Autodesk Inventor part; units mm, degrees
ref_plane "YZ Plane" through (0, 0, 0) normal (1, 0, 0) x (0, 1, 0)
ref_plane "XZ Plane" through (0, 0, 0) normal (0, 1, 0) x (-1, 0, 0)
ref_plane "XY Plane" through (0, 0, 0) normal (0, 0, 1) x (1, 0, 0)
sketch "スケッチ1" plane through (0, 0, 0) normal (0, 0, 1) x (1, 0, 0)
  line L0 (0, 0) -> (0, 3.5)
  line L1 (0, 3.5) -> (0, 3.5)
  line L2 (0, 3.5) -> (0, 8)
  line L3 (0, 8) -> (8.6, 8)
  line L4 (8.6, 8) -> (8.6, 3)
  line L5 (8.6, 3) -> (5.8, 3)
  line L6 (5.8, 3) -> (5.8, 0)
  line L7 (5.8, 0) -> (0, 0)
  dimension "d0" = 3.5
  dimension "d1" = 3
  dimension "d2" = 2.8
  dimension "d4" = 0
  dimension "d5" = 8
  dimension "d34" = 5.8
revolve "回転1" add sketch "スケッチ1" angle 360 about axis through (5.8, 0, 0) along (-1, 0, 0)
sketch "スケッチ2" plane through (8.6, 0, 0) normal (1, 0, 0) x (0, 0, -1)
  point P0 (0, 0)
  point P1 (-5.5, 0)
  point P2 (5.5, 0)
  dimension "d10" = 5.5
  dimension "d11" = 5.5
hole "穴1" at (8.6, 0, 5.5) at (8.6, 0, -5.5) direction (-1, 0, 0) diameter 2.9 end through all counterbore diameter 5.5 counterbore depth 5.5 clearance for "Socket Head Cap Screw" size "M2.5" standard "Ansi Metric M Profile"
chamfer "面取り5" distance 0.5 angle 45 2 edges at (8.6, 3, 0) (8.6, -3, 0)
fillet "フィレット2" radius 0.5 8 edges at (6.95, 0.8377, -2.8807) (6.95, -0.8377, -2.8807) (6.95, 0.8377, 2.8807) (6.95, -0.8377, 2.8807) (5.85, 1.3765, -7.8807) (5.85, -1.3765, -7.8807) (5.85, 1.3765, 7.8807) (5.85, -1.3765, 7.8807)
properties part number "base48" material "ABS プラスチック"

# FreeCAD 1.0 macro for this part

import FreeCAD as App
import Part
import Sketcher

V = App.Vector


def edges_at(feature, points):
    """Names of the edges that pass closest to the given points."""
    edges = feature.Shape.Edges
    near = lambda p: min(range(len(edges)), key=lambda i: edges[i].distToShape(Part.Vertex(*p))[0])
    return sorted({f"Edge{near(p) + 1}" for p in points})

doc = App.newDocument("Part")
body = doc.addObject("PartDesign::Body", "Body")

# Sketch on XY plane
sketch1 = body.newObject("Sketcher::SketchObject", "Sketch")
sketch1.AttachmentSupport = (doc.getObject("XY_Plane"), [""])
sketch1.MapMode = "FlatFace"
sketch1.addGeometry(Part.LineSegment(V(0, 8, 0), V(0, 0, 0)), False)
sketch1.addGeometry(Part.LineSegment(V(0, 0, 0), V(5.8, 0, 0)), False)
sketch1.addGeometry(Part.LineSegment(V(5.8, 0, 0), V(5.8, 3, 0)), False)
sketch1.addGeometry(Part.LineSegment(V(5.8, 3, 0), V(8.6, 3, 0)), False)
sketch1.addGeometry(Part.LineSegment(V(8.6, 3, 0), V(8.6, 8, 0)), False)
sketch1.addGeometry(Part.LineSegment(V(8.6, 8, 0), V(0, 8, 0)), False)
sketch1.addConstraint(Sketcher.Constraint("Coincident", 0, 2, 1, 1))
sketch1.addConstraint(Sketcher.Constraint("Coincident", 1, 2, 2, 1))
sketch1.addConstraint(Sketcher.Constraint("Coincident", 2, 2, 3, 1))
sketch1.addConstraint(Sketcher.Constraint("Coincident", 3, 2, 4, 1))
sketch1.addConstraint(Sketcher.Constraint("Coincident", 4, 2, 5, 1))
sketch1.addConstraint(Sketcher.Constraint("Coincident", 5, 2, 0, 1))
sketch1.addConstraint(Sketcher.Constraint("Vertical", 0))
sketch1.addConstraint(Sketcher.Constraint("Horizontal", 1))
sketch1.addConstraint(Sketcher.Constraint("Vertical", 2))
sketch1.addConstraint(Sketcher.Constraint("Horizontal", 3))
sketch1.addConstraint(Sketcher.Constraint("Vertical", 4))
sketch1.addConstraint(Sketcher.Constraint("Horizontal", 5))
sketch1.addConstraint(Sketcher.Constraint("Coincident", 0, 2, -1, 1))
sketch1.addConstraint(Sketcher.Constraint("DistanceY", 0, 2, 0, 1, 8.0))
sketch1.addConstraint(Sketcher.Constraint("DistanceY", 2, 1, 2, 2, 3.0))
sketch1.addConstraint(Sketcher.Constraint("DistanceX", 1, 1, 1, 2, 5.8))
sketch1.addConstraint(Sketcher.Constraint("DistanceX", 3, 1, 3, 2, 2.8))
revolution = body.newObject("PartDesign::Revolution", "Revolution")
revolution.Profile = sketch1
revolution.ReferenceAxis = (sketch1, ["H_Axis"])
revolution.Angle = 360

# Sketch on YZ plane
sketch2 = body.newObject("Sketcher::SketchObject", "Sketch001")
sketch2.AttachmentSupport = (doc.getObject("YZ_Plane"), [""])
sketch2.MapMode = "FlatFace"
sketch2.AttachmentOffset = App.Placement(V(0, 0, 8.6), App.Rotation())
sketch2.addGeometry(Part.Circle(V(0, 5.5, 0), V(0, 0, 1), 1.4), False)
sketch2.addGeometry(Part.Circle(V(0, -5.5, 0), V(0, 0, 1), 1.4), False)
sketch2.addConstraint(Sketcher.Constraint("Equal", 0, 1))
sketch2.addConstraint(Sketcher.Constraint("Symmetric", 0, 3, 1, 3, -1, 1))
sketch2.addConstraint(Sketcher.Constraint("PointOnObject", 0, 3, -2))
sketch2.addConstraint(Sketcher.Constraint("Diameter", 0, 2.9))
sketch2.addConstraint(Sketcher.Constraint("DistanceY", 1, 3, 0, 3, 11.0))
doc.recompute()
hole = body.newObject("PartDesign::Hole", "Hole")
hole.Profile = sketch2
hole.ThreadType = "None"
hole.Diameter = 2.9
hole.DepthType = "ThroughAll"
hole.HoleCutType = "Counterbore"
hole.HoleCutDiameter = 5.5
hole.HoleCutDepth = 5.5
doc.recompute()

chamfer = body.newObject("PartDesign::Chamfer", "Chamfer")
chamfer.Base = (hole, edges_at(hole, [(8.6, 3, 0), (8.6, -3, 0)]))
chamfer.Size = 0.5
doc.recompute()

fillet = body.newObject("PartDesign::Fillet", "Fillet")
fillet.Base = (chamfer, edges_at(chamfer, [
    (6.95, 0.838, -2.881),
    (6.95, -0.838, -2.881),
    (6.95, 0.838, 2.881),
    (6.95, -0.838, 2.881),
    (5.85, 1.377, -7.881),
    (5.85, -1.377, -7.881),
    (5.85, 1.377, 7.881),
    (5.85, -1.377, 7.881),
]))
fillet.Radius = 0.5

doc.recompute()
